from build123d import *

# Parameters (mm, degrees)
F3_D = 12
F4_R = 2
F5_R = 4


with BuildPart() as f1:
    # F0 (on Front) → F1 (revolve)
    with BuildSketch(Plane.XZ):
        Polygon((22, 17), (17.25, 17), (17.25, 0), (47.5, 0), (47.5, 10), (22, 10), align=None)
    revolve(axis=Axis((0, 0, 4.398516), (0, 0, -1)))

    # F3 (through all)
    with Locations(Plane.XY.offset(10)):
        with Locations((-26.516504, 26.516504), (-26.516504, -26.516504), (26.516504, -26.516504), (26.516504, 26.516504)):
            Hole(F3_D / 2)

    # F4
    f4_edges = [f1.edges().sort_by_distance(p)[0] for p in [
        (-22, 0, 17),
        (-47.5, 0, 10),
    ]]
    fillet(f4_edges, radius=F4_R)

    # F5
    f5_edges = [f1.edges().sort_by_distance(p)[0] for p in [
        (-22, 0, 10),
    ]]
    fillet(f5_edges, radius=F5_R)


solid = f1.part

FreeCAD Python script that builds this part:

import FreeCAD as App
import Part
import Sketcher

V = App.Vector
Q = App.Units.Quantity


def edges_at(feature, points):
    """Names of the edges that pass closest to the given points."""
    edges = feature.Shape.Edges
    near = lambda p: min(range(len(edges)), key=lambda i: edges[i].distToShape(Part.Vertex(*p))[0])
    return sorted({f"Edge{near(p) + 1}" for p in points})


def add_polygon(sketch, points):
    """Adds a closed chain of lines whose ends are joined by coincident constraints."""
    first, n = sketch.GeometryCount, len(points)
    for a, b in zip(points, points[1:] + points[:1]):
        sketch.addGeometry(Part.LineSegment(App.Vector(*a, 0), App.Vector(*b, 0)), False)
    for i in range(n):
        sketch.addConstraint(Sketcher.Constraint("Coincident", first + i, 2, first + (i + 1) % n, 1))

doc = App.newDocument("Part")
body = doc.addObject("PartDesign::Body", "Body")

# Sketch on XZ plane
sketch1 = doc.addObject("Sketcher::SketchObject", "Sketch")
body.addObject(sketch1)
sketch1.AttachmentSupport = (doc.XZ_Plane, [""])
sketch1.MapMode = "FlatFace"
add_polygon(sketch1, [(22, 17), (17.2, 17), (17.2, 0), (47.5, 0), (47.5, 10), (22, 10)])  # lines 0-5
sketch1.addConstraint([
    Sketcher.Constraint("Horizontal", 0),
    Sketcher.Constraint("Vertical", 1),
    Sketcher.Constraint("Horizontal", 2),
    Sketcher.Constraint("Vertical", 3),
    Sketcher.Constraint("Horizontal", 4),
    Sketcher.Constraint("Vertical", 5),
    Sketcher.Constraint("PointOnObject", 1, 2, -1),
    Sketcher.Constraint("DistanceY", 1, 2, 1, 1, Q("17 mm")),
    Sketcher.Constraint("DistanceY", 3, 1, 3, 2, Q("10 mm")),
    Sketcher.Constraint("DistanceX", 4, 2, 4, 1, Q("25.5 mm")),
    Sketcher.Constraint("DistanceX", -1, 1, 4, 2, Q("22 mm")),
    Sketcher.Constraint("DistanceX", 0, 2, 0, 1, Q("4.75 mm")),
])
revolution = doc.addObject("PartDesign::Revolution", "Revolution")
body.addObject(revolution)
revolution.Profile = sketch1
revolution.ReferenceAxis = (sketch1, ["V_Axis"])
revolution.Angle = 360

# Sketch on XY plane
sketch2 = doc.addObject("Sketcher::SketchObject", "Sketch001")
body.addObject(sketch2)
sketch2.AttachmentSupport = (doc.XY_Plane, [""])
sketch2.MapMode = "FlatFace"
sketch2.AttachmentOffset = App.Placement(V(0, 0, 10), App.Rotation())
sketch2.addGeometry([
    Part.Circle(V(-27, 27, 0), V(0, 0, 1), 6),
    Part.Circle(V(-27, -27, 0), V(0, 0, 1), 6),
    Part.Circle(V(27, -27, 0), V(0, 0, 1), 6),
    Part.Circle(V(27, 27, 0), V(0, 0, 1), 6),
], False)
sketch2.addConstraint([
    Sketcher.Constraint("Equal", 0, 1),
    Sketcher.Constraint("Equal", 1, 2),
    Sketcher.Constraint("Equal", 2, 3),
    Sketcher.Constraint("Symmetric", 0, 3, 2, 3, -1, 1),
    Sketcher.Constraint("Symmetric", 1, 3, 3, 3, -1, 1),
    Sketcher.Constraint("Symmetric", 1, 3, 2, 3, -2),
    Sketcher.Constraint("Diameter", 0, Q("12 mm")),
    Sketcher.Constraint("DistanceY", 1, 3, 0, 3, Q("53.033008 mm")),
    Sketcher.Constraint("DistanceX", 1, 3, 2, 3, Q("53.033008 mm")),
])
doc.recompute()
hole = doc.addObject("PartDesign::Hole", "Hole")
body.addObject(hole)
hole.Profile = sketch2
hole.ThreadType = "None"
hole.Diameter = 12
hole.DepthType = "ThroughAll"
doc.recompute()

fillet = doc.addObject("PartDesign::Fillet", "Fillet")
body.addObject(fillet)
fillet.Base = (hole, edges_at(hole, [(-22, 0, 17), (-47.5, 0, 10)]))
fillet.Radius = 2
doc.recompute()

fillet2 = doc.addObject("PartDesign::Fillet", "Fillet001")
body.addObject(fillet2)
fillet2.Base = (fillet, edges_at(fillet, [(-22, 0, 10)]))
fillet2.Radius = 4

doc.recompute()
